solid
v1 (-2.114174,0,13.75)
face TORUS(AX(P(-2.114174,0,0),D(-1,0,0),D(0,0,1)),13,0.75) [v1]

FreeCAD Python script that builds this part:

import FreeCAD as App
import Part
import Sketcher
from FreeCAD import Vector
Q = App.Units.Quantity

doc = App.newDocument("Part")
params = doc.addObject("Spreadsheet::Sheet", "Params")
for row, (alias, value) in enumerate([
    ("sketch1_diameter", "1.5 mm"),
    ("revolution_angle", "360 deg"),
], start=1):
    params.set(f"A{row}", alias)
    params.set(f"B{row}", "=" + value)
    params.setAlias(f"B{row}", alias)

body = doc.addObject("PartDesign::Body", "Body")

# Sketch on XZ plane
sketch1 = doc.addObject("Sketcher::SketchObject", "Sketch")
body.addObject(sketch1)
sketch1.AttachmentSupport = (doc.XZ_Plane, [""])
sketch1.MapMode = "FlatFace"
sketch1.addGeometry(Part.Circle(Vector(-2.1, -13, 0), Vector(0, 0, 1), 0.8), False)
sketch1.addConstraint(Sketcher.Constraint("Diameter", 0, Q("1.5 mm")))
sketch1.addConstraint(Sketcher.Constraint("DistanceY", 0, 3, -1, 1, Q("13 mm")))
sketch1.addConstraint(Sketcher.Constraint("DistanceX", 0, 3, -1, 1, Q("2.114174 mm")))
sketch1.setExpression("Constraints[0]", "Params.sketch1_diameter")
revolution = doc.addObject("PartDesign::Revolution", "Revolution")
body.addObject(revolution)
revolution.Profile = sketch1
revolution.ReferenceAxis = (sketch1, ["H_Axis"])
revolution.setExpression("Angle", "Params.revolution_angle")

doc.recompute()
